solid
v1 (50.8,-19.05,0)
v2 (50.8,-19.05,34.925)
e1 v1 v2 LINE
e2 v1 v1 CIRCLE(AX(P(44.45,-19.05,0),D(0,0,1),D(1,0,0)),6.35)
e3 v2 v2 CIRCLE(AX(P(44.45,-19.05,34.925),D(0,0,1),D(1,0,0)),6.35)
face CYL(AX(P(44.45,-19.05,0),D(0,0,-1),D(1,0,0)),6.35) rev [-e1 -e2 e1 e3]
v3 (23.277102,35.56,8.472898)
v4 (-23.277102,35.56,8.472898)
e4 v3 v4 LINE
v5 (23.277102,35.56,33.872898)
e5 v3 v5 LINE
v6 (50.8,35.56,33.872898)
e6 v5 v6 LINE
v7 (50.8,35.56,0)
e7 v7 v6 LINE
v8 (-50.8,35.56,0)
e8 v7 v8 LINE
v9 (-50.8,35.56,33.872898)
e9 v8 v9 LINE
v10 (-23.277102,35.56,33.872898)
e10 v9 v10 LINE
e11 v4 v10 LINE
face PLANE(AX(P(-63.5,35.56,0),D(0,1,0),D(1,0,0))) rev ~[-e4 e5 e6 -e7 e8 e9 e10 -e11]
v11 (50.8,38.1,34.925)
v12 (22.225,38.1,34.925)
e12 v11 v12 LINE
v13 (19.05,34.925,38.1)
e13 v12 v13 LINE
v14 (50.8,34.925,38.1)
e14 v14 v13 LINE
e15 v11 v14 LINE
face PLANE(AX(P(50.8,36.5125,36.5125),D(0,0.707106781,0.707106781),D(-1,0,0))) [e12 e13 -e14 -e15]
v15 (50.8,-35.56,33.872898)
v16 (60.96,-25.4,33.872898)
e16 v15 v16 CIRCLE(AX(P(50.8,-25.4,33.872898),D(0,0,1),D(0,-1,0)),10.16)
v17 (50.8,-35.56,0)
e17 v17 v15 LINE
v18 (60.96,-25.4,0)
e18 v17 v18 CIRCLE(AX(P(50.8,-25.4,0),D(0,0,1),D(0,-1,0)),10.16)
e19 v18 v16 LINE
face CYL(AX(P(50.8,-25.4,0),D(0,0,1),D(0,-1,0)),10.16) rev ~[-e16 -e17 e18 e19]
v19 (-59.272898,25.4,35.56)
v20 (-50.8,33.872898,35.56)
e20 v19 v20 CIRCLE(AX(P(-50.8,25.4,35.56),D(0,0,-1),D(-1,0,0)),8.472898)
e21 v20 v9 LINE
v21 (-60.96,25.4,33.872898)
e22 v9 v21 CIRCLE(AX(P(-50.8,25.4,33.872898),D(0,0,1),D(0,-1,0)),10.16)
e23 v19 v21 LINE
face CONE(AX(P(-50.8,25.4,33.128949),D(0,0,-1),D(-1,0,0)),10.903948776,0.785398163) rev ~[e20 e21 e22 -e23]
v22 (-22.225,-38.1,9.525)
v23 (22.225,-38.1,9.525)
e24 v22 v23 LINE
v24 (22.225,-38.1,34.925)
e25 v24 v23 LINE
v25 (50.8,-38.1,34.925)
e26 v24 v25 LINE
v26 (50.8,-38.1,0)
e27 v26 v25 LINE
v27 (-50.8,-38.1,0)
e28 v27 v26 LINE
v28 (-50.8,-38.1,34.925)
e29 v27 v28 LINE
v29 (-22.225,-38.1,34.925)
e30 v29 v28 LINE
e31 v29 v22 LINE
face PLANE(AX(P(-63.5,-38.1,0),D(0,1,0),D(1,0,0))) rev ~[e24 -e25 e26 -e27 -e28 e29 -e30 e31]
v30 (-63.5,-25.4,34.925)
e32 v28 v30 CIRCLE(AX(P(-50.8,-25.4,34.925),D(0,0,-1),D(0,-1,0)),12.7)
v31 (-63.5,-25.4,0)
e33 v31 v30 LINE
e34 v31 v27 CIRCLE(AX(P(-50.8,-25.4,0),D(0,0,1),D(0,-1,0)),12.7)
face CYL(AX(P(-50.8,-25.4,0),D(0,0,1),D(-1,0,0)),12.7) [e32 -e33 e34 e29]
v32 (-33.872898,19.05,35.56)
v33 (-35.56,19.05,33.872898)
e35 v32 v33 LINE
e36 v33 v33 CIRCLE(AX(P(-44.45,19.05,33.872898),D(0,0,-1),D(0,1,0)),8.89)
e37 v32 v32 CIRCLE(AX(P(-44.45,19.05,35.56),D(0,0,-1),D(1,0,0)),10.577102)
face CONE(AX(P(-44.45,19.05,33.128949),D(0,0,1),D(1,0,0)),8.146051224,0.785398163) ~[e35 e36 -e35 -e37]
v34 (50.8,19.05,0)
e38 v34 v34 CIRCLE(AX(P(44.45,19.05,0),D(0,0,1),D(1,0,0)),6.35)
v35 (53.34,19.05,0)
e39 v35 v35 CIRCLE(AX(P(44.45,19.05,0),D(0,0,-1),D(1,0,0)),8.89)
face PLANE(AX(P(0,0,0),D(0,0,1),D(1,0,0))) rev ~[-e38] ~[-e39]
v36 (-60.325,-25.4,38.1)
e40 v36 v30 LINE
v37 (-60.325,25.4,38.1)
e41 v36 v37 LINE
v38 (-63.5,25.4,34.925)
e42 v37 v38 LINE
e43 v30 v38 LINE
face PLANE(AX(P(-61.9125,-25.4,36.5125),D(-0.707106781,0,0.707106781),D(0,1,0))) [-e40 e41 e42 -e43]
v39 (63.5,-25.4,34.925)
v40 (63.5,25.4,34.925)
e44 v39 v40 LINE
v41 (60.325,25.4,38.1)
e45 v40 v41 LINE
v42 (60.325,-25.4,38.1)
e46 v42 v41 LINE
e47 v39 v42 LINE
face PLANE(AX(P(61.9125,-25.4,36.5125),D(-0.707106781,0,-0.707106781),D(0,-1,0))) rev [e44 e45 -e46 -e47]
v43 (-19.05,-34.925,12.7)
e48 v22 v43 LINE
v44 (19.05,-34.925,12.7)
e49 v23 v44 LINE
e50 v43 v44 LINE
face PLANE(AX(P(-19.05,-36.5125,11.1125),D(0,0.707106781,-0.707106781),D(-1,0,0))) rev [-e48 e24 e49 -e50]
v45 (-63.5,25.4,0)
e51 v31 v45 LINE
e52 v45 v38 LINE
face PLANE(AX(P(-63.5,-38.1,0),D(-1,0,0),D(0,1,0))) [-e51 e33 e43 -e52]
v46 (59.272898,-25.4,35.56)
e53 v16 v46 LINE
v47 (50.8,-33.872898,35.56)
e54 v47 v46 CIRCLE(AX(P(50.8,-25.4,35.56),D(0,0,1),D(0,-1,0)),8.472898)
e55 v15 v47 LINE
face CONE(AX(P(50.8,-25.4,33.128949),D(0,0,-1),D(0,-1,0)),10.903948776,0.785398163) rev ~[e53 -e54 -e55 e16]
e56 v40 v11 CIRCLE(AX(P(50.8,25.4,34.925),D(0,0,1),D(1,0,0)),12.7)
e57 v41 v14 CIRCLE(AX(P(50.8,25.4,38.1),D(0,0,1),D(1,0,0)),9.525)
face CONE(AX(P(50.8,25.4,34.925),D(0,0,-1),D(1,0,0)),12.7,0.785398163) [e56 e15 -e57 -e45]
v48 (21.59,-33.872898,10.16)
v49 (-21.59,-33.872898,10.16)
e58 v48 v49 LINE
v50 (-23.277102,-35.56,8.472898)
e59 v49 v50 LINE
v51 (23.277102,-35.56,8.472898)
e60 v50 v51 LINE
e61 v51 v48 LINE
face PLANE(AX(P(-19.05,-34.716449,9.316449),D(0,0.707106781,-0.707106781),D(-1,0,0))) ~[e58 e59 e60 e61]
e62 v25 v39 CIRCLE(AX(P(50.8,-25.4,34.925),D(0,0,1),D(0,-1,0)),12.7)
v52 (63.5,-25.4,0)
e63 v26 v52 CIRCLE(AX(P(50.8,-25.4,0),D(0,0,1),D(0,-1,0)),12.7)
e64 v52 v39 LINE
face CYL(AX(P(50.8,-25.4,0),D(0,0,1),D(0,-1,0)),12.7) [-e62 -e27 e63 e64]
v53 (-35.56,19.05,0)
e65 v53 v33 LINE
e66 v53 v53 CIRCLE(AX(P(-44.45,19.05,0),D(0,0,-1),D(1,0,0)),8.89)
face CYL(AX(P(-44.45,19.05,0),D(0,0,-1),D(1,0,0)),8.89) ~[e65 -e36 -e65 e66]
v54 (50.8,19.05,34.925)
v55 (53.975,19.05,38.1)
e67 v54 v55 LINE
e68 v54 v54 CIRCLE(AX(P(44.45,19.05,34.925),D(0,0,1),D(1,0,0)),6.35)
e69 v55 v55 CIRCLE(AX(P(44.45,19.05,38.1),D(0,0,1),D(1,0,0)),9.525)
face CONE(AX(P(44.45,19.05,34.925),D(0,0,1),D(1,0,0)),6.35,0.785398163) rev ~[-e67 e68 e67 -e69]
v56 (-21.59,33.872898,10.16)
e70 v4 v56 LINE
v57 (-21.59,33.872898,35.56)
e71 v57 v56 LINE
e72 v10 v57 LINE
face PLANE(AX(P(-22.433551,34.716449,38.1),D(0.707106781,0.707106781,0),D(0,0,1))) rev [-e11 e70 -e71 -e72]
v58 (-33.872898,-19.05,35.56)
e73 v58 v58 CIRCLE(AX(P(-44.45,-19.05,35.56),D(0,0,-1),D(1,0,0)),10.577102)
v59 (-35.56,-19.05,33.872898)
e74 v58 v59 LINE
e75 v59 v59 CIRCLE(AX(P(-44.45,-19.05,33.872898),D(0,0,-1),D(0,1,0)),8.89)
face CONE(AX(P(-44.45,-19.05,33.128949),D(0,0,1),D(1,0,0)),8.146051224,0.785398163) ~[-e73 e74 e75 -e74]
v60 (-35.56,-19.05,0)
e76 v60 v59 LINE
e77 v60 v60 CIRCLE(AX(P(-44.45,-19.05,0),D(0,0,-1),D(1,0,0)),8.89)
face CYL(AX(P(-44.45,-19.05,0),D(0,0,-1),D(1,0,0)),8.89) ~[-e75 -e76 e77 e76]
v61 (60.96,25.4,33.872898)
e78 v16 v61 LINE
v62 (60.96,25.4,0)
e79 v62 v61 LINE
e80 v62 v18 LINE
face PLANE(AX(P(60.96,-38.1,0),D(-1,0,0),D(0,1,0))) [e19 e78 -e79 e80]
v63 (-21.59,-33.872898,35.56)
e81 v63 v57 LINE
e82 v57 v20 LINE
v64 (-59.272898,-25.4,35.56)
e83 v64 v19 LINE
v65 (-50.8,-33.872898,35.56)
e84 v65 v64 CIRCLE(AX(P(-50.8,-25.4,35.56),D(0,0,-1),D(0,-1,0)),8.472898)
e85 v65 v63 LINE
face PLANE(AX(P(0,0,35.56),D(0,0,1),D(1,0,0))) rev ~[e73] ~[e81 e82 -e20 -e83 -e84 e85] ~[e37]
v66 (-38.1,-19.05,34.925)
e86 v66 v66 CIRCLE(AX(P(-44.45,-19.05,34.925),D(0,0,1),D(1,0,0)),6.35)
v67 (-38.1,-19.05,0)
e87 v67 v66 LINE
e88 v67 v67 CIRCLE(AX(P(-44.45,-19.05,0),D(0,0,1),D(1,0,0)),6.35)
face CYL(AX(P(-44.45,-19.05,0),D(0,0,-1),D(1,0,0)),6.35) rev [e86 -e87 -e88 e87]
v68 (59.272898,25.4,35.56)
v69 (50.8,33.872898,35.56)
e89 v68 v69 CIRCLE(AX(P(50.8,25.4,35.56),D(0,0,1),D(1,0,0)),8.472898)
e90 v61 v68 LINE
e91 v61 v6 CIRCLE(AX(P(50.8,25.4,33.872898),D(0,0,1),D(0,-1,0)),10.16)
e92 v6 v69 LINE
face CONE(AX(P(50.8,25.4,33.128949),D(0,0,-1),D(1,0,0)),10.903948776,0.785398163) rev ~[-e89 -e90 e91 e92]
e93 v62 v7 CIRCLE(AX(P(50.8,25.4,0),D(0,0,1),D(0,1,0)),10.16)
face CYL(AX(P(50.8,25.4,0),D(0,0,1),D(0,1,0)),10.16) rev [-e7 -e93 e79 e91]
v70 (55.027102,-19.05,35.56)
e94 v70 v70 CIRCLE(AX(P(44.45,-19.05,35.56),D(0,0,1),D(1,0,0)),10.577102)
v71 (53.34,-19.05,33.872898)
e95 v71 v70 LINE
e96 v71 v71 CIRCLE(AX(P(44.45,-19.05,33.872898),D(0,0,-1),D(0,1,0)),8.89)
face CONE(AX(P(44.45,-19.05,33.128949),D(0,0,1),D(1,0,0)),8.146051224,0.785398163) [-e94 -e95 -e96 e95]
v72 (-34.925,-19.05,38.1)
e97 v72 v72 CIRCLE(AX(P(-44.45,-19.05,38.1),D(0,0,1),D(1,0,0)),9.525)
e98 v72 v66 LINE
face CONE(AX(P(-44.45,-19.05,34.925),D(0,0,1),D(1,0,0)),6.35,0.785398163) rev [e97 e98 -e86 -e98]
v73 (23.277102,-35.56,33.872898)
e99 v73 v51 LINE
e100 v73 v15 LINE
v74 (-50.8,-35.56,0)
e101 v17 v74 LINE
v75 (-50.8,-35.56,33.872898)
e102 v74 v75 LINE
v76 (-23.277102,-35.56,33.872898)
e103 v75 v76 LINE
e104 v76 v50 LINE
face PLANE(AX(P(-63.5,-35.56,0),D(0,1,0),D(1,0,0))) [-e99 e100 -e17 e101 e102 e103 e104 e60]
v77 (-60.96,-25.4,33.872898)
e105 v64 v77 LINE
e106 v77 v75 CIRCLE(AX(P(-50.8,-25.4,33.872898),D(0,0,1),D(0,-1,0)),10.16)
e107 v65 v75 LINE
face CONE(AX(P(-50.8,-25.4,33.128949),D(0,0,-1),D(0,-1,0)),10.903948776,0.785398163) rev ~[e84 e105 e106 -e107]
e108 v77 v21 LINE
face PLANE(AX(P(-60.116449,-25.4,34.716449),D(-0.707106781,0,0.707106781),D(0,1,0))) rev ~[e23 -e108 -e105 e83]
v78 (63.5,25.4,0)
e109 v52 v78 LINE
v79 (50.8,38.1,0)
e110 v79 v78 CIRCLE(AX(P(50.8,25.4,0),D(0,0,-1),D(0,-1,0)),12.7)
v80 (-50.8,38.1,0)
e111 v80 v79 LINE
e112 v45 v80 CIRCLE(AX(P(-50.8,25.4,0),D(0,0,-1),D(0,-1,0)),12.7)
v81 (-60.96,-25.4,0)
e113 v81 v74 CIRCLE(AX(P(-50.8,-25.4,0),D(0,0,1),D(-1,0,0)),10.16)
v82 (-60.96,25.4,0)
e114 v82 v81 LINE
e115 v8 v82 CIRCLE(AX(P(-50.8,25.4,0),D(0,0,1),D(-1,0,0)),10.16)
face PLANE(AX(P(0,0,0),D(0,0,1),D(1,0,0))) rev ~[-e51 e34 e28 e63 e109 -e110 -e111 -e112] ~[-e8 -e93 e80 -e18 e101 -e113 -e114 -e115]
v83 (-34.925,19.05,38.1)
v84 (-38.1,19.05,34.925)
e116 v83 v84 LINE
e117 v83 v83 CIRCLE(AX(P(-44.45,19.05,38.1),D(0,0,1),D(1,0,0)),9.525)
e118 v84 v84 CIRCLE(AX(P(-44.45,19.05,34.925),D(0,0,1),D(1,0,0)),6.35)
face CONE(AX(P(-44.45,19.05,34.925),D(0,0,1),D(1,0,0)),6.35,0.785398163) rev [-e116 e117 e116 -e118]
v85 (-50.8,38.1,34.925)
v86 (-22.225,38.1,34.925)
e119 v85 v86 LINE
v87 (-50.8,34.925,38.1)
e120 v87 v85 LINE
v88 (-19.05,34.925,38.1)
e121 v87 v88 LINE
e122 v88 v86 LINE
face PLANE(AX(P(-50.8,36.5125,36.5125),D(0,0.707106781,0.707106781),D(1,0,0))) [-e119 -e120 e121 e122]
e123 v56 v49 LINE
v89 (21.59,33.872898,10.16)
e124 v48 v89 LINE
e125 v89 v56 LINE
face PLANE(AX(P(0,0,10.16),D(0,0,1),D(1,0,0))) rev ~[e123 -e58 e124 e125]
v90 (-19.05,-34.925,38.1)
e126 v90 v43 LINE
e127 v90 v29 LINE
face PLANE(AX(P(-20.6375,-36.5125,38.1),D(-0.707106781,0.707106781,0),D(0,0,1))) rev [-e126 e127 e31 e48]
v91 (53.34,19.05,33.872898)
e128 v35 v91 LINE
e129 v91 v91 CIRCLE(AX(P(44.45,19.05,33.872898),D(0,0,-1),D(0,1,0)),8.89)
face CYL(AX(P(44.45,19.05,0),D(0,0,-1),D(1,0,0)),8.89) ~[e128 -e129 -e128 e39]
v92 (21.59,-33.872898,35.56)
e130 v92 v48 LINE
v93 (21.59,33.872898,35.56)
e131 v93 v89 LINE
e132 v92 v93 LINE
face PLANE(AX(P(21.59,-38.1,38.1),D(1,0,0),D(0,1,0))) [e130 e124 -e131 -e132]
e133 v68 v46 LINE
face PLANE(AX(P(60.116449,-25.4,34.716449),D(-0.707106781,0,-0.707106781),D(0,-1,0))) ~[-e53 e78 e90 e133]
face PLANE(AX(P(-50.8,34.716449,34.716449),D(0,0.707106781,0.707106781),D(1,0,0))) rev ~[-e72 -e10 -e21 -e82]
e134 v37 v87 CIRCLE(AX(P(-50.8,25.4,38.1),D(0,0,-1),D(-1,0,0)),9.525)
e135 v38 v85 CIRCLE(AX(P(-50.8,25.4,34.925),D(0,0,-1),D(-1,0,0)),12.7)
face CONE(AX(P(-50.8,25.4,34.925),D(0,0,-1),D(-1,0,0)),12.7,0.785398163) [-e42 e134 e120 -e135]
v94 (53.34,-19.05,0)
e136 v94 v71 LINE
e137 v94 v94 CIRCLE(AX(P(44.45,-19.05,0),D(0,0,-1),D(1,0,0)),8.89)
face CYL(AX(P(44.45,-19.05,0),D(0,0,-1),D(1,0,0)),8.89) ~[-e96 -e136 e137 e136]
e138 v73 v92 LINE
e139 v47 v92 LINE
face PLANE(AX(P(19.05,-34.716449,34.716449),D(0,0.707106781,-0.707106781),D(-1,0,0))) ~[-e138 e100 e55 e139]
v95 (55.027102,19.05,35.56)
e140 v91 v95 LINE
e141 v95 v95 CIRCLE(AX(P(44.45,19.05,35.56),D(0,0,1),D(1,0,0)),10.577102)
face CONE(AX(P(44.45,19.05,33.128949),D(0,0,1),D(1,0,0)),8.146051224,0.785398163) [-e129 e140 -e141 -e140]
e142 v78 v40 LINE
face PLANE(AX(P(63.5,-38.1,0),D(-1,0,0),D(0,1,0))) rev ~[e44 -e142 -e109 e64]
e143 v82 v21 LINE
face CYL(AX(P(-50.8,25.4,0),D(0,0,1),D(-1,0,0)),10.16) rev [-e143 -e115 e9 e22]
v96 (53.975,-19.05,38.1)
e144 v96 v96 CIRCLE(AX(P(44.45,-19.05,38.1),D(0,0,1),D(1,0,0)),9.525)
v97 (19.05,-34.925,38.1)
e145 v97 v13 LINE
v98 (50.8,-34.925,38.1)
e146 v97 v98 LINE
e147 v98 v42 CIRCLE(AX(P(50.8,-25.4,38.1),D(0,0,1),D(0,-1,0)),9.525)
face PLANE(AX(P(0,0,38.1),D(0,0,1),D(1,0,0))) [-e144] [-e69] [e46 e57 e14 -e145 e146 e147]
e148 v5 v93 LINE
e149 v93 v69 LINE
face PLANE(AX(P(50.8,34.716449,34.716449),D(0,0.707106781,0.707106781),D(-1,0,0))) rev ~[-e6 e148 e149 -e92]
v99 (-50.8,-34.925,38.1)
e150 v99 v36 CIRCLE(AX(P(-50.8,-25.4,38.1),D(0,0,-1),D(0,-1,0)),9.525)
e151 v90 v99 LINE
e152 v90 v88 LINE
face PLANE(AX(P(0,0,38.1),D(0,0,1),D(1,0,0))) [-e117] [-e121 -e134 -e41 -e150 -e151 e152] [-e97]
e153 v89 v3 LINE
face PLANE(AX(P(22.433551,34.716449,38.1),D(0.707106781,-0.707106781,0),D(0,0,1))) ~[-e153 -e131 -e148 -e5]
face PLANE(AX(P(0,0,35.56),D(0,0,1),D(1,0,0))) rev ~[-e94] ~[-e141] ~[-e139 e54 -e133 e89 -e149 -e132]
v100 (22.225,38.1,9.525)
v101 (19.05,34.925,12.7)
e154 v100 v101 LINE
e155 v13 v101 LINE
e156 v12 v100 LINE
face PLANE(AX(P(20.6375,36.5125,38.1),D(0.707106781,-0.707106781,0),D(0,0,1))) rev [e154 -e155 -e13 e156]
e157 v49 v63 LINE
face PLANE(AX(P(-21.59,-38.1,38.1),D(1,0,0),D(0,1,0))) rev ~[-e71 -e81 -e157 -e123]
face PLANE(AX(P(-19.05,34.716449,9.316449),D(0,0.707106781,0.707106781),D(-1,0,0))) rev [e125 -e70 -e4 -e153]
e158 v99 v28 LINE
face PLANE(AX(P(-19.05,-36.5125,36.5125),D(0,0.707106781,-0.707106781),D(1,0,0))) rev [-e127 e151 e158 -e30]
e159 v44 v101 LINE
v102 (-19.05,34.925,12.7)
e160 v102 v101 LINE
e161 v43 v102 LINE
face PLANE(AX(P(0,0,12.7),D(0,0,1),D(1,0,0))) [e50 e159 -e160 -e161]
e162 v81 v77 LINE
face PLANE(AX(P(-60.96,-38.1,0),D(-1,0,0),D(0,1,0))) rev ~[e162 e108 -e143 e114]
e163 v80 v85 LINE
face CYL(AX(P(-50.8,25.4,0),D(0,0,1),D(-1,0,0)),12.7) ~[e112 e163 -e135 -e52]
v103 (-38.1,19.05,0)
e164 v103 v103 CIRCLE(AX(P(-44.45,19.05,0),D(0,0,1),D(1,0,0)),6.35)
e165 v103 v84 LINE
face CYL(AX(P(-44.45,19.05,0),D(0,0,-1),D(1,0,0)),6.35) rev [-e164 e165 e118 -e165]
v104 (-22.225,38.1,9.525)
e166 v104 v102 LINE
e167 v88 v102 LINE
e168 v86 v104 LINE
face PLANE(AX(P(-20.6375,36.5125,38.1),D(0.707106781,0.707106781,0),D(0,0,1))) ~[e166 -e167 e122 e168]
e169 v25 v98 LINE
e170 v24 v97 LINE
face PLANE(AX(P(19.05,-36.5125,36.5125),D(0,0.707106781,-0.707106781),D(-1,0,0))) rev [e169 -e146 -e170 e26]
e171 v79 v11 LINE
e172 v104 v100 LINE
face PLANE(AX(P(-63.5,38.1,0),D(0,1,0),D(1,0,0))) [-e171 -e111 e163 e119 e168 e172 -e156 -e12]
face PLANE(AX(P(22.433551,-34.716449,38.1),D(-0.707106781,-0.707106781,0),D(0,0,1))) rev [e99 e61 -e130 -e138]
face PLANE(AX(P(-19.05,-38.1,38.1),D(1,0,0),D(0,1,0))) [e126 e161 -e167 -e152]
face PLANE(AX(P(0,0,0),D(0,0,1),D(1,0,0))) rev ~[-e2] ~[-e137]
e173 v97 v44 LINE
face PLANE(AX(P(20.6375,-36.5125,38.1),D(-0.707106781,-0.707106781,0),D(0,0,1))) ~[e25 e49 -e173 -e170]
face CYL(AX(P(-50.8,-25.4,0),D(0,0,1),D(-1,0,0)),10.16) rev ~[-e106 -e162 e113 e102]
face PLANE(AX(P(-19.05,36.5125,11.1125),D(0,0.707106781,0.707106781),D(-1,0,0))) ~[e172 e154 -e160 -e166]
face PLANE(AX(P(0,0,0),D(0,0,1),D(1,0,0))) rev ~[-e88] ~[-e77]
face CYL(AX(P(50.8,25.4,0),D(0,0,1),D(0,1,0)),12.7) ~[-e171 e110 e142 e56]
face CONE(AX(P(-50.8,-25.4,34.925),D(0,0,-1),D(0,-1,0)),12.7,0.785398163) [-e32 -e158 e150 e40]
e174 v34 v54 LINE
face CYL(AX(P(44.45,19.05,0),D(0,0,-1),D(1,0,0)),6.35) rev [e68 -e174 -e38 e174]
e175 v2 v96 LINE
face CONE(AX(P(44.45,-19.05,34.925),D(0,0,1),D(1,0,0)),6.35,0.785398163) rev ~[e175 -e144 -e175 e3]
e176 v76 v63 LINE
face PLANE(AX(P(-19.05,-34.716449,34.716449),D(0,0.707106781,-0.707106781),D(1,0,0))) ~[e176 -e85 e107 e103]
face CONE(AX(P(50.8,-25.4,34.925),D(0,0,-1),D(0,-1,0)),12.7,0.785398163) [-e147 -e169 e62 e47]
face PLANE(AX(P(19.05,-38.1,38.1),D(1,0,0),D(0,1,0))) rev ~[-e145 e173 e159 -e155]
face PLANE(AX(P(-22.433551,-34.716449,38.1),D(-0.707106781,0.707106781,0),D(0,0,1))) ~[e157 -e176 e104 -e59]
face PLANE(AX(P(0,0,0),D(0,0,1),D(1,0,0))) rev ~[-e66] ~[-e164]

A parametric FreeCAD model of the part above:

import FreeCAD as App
import Part
import Sketcher
Q = App.Units.Quantity


def edges_at(feature, points):
    """Names of the edges that pass closest to the given points."""
    edges = feature.Shape.Edges
    near = lambda p: min(range(len(edges)), key=lambda i: edges[i].distToShape(Part.Vertex(*p))[0])
    return sorted({f"Edge{near(p) + 1}" for p in points})


def faces_at(feature, points):
    """Names of the faces that lie closest to the given points."""
    faces = feature.Shape.Faces
    near = lambda p: min(range(len(faces)), key=lambda i: faces[i].distToShape(Part.Vertex(*p))[0])
    return sorted({f"Face{near(p) + 1}" for p in points})

doc = App.newDocument("Part")
body = doc.addObject("PartDesign::Body", "Body")

# Sketch on XY plane
sketch1 = doc.addObject("Sketcher::SketchObject", "Sketch")
body.addObject(sketch1)
sketch1.AttachmentSupport = (doc.XY_Plane, [""])
sketch1.MapMode = "FlatFace"
sketch1.addGeometry([
    Part.LineSegment(App.Vector(-64, 38, 0), App.Vector(-64, -38, 0)),  # 0
    Part.LineSegment(App.Vector(-64, -38, 0), App.Vector(64, -38, 0)),  # 1
    Part.LineSegment(App.Vector(64, -38, 0), App.Vector(64, 38, 0)),  # 2
    Part.LineSegment(App.Vector(64, 38, 0), App.Vector(-64, 38, 0)),  # 3
    Part.Circle(App.Vector(-44, -19, 0), App.Vector(0, 0, 1), 6),  # 4
    Part.Circle(App.Vector(44, -19, 0), App.Vector(0, 0, 1), 6),  # 5
    Part.Circle(App.Vector(-44, 19, 0), App.Vector(0, 0, 1), 6),  # 6
    Part.Circle(App.Vector(44, 19, 0), App.Vector(0, 0, 1), 6),  # 7
], False)
sketch1.addConstraint([
    Sketcher.Constraint("Coincident", 0, 2, 1, 1),
    Sketcher.Constraint("Coincident", 1, 2, 2, 1),
    Sketcher.Constraint("Coincident", 2, 2, 3, 1),
    Sketcher.Constraint("Coincident", 3, 2, 0, 1),
    Sketcher.Constraint("Vertical", 0),
    Sketcher.Constraint("Horizontal", 1),
    Sketcher.Constraint("Vertical", 2),
    Sketcher.Constraint("Horizontal", 3),
    Sketcher.Constraint("Equal", 4, 5),
    Sketcher.Constraint("Equal", 5, 6),
    Sketcher.Constraint("Equal", 6, 7),
    Sketcher.Constraint("Symmetric", 5, 3, 6, 3, -1, 1),
    Sketcher.Constraint("Symmetric", 4, 3, 7, 3, -1, 1),
    Sketcher.Constraint("Symmetric", 0, 2, 2, 2, -1, 1),
    Sketcher.Constraint("Symmetric", 4, 3, 5, 3, -2),
    Sketcher.Constraint("Diameter", 4, Q("0.5 in")),
    Sketcher.Constraint("DistanceX", 1, 1, 1, 2, Q("5 in")),
    Sketcher.Constraint("DistanceY", 0, 2, 0, 1, Q("3 in")),
    Sketcher.Constraint("DistanceX", 4, 3, 5, 3, Q("3.5 in")),
    Sketcher.Constraint("DistanceY", 4, 3, 6, 3, Q("1.5 in")),
])
pad1 = doc.addObject("PartDesign::Pad", "Pad")
body.addObject(pad1)
pad1.Profile = sketch1
pad1.Length = Q("1.5 in")

# Sketch on XY plane
sketch2 = doc.addObject("Sketcher::SketchObject", "Sketch001")
body.addObject(sketch2)
sketch2.AttachmentSupport = (doc.XY_Plane, [""])
sketch2.MapMode = "FlatFace"
sketch2.AttachmentOffset = App.Placement(App.Vector(0, 0, 1.5 * 25.4), App.Rotation())
sketch2.addGeometry([
    Part.LineSegment(App.Vector(-19, 38, 0), App.Vector(-19, -38, 0)),
    Part.LineSegment(App.Vector(-19, -38, 0), App.Vector(19, -38, 0)),
    Part.LineSegment(App.Vector(19, -38, 0), App.Vector(19, 38, 0)),
    Part.LineSegment(App.Vector(19, 38, 0), App.Vector(-19, 38, 0)),
], False)
sketch2.addConstraint([
    Sketcher.Constraint("Coincident", 0, 2, 1, 1),
    Sketcher.Constraint("Coincident", 1, 2, 2, 1),
    Sketcher.Constraint("Coincident", 2, 2, 3, 1),
    Sketcher.Constraint("Coincident", 3, 2, 0, 1),
    Sketcher.Constraint("Vertical", 0),
    Sketcher.Constraint("Horizontal", 1),
    Sketcher.Constraint("Vertical", 2),
    Sketcher.Constraint("Horizontal", 3),
    Sketcher.Constraint("Symmetric", 0, 2, 2, 2, -1, 1),
    Sketcher.Constraint("DistanceY", 0, 2, 0, 1, Q("3 in")),
    Sketcher.Constraint("DistanceX", 1, 1, 1, 2, Q("1.5 in")),
])
pocket1 = doc.addObject("PartDesign::Pocket", "Pocket")
body.addObject(pocket1)
pocket1.Profile = sketch2
pocket1.Length = Q("1 in")
doc.recompute()

fillet = doc.addObject("PartDesign::Fillet", "Fillet")
body.addObject(fillet)
fillet.Base = (pocket1, edges_at(pocket1, [
    (63.5, -38.1, 19.05),
    (-63.5, -38.1, 19.05),
    (-63.5, 38.1, 19.05),
    (63.5, 38.1, 19.05),
]))
fillet.Radius = Q("0.5 in")
doc.recompute()

chamfer = doc.addObject("PartDesign::Chamfer", "Chamfer")
body.addObject(chamfer)
chamfer.Base = (fillet, edges_at(fillet, [
    (-50.8, 19.05, 38.1),
    (38.1, 19.05, 38.1),
    (-50.8, -19.05, 38.1),
    (38.1, -19.05, 38.1),
    (34.925, -38.1, 38.1),
    (-34.925, 38.1, 38.1),
    (19.05, 38.1, 25.4),
    (0, -38.1, 12.7),
    (19.05, -38.1, 25.4),
    (-19.05, -38.1, 25.4),
    (0, 38.1, 12.7),
    (-19.05, 38.1, 25.4),
    (-34.925, -38.1, 38.1),
    (-63.5, 0, 38.1),
    (-59.78, 34.38, 38.1),
    (-59.78, -34.38, 38.1),
    (63.5, 0, 38.1),
    (34.925, 38.1, 38.1),
    (59.78, 34.38, 38.1),
    (59.78, -34.38, 38.1),
]))
chamfer.Size = Q("0.125 in")
doc.recompute()

thickness = doc.addObject("PartDesign::Thickness", "Thickness")
body.addObject(thickness)
thickness.Base = (chamfer, faces_at(chamfer, [(0, 0, 0)]))
thickness.Value = Q("0.1 in")
thickness.Reversed = True
thickness.Join = "Intersection"

doc.recompute()
